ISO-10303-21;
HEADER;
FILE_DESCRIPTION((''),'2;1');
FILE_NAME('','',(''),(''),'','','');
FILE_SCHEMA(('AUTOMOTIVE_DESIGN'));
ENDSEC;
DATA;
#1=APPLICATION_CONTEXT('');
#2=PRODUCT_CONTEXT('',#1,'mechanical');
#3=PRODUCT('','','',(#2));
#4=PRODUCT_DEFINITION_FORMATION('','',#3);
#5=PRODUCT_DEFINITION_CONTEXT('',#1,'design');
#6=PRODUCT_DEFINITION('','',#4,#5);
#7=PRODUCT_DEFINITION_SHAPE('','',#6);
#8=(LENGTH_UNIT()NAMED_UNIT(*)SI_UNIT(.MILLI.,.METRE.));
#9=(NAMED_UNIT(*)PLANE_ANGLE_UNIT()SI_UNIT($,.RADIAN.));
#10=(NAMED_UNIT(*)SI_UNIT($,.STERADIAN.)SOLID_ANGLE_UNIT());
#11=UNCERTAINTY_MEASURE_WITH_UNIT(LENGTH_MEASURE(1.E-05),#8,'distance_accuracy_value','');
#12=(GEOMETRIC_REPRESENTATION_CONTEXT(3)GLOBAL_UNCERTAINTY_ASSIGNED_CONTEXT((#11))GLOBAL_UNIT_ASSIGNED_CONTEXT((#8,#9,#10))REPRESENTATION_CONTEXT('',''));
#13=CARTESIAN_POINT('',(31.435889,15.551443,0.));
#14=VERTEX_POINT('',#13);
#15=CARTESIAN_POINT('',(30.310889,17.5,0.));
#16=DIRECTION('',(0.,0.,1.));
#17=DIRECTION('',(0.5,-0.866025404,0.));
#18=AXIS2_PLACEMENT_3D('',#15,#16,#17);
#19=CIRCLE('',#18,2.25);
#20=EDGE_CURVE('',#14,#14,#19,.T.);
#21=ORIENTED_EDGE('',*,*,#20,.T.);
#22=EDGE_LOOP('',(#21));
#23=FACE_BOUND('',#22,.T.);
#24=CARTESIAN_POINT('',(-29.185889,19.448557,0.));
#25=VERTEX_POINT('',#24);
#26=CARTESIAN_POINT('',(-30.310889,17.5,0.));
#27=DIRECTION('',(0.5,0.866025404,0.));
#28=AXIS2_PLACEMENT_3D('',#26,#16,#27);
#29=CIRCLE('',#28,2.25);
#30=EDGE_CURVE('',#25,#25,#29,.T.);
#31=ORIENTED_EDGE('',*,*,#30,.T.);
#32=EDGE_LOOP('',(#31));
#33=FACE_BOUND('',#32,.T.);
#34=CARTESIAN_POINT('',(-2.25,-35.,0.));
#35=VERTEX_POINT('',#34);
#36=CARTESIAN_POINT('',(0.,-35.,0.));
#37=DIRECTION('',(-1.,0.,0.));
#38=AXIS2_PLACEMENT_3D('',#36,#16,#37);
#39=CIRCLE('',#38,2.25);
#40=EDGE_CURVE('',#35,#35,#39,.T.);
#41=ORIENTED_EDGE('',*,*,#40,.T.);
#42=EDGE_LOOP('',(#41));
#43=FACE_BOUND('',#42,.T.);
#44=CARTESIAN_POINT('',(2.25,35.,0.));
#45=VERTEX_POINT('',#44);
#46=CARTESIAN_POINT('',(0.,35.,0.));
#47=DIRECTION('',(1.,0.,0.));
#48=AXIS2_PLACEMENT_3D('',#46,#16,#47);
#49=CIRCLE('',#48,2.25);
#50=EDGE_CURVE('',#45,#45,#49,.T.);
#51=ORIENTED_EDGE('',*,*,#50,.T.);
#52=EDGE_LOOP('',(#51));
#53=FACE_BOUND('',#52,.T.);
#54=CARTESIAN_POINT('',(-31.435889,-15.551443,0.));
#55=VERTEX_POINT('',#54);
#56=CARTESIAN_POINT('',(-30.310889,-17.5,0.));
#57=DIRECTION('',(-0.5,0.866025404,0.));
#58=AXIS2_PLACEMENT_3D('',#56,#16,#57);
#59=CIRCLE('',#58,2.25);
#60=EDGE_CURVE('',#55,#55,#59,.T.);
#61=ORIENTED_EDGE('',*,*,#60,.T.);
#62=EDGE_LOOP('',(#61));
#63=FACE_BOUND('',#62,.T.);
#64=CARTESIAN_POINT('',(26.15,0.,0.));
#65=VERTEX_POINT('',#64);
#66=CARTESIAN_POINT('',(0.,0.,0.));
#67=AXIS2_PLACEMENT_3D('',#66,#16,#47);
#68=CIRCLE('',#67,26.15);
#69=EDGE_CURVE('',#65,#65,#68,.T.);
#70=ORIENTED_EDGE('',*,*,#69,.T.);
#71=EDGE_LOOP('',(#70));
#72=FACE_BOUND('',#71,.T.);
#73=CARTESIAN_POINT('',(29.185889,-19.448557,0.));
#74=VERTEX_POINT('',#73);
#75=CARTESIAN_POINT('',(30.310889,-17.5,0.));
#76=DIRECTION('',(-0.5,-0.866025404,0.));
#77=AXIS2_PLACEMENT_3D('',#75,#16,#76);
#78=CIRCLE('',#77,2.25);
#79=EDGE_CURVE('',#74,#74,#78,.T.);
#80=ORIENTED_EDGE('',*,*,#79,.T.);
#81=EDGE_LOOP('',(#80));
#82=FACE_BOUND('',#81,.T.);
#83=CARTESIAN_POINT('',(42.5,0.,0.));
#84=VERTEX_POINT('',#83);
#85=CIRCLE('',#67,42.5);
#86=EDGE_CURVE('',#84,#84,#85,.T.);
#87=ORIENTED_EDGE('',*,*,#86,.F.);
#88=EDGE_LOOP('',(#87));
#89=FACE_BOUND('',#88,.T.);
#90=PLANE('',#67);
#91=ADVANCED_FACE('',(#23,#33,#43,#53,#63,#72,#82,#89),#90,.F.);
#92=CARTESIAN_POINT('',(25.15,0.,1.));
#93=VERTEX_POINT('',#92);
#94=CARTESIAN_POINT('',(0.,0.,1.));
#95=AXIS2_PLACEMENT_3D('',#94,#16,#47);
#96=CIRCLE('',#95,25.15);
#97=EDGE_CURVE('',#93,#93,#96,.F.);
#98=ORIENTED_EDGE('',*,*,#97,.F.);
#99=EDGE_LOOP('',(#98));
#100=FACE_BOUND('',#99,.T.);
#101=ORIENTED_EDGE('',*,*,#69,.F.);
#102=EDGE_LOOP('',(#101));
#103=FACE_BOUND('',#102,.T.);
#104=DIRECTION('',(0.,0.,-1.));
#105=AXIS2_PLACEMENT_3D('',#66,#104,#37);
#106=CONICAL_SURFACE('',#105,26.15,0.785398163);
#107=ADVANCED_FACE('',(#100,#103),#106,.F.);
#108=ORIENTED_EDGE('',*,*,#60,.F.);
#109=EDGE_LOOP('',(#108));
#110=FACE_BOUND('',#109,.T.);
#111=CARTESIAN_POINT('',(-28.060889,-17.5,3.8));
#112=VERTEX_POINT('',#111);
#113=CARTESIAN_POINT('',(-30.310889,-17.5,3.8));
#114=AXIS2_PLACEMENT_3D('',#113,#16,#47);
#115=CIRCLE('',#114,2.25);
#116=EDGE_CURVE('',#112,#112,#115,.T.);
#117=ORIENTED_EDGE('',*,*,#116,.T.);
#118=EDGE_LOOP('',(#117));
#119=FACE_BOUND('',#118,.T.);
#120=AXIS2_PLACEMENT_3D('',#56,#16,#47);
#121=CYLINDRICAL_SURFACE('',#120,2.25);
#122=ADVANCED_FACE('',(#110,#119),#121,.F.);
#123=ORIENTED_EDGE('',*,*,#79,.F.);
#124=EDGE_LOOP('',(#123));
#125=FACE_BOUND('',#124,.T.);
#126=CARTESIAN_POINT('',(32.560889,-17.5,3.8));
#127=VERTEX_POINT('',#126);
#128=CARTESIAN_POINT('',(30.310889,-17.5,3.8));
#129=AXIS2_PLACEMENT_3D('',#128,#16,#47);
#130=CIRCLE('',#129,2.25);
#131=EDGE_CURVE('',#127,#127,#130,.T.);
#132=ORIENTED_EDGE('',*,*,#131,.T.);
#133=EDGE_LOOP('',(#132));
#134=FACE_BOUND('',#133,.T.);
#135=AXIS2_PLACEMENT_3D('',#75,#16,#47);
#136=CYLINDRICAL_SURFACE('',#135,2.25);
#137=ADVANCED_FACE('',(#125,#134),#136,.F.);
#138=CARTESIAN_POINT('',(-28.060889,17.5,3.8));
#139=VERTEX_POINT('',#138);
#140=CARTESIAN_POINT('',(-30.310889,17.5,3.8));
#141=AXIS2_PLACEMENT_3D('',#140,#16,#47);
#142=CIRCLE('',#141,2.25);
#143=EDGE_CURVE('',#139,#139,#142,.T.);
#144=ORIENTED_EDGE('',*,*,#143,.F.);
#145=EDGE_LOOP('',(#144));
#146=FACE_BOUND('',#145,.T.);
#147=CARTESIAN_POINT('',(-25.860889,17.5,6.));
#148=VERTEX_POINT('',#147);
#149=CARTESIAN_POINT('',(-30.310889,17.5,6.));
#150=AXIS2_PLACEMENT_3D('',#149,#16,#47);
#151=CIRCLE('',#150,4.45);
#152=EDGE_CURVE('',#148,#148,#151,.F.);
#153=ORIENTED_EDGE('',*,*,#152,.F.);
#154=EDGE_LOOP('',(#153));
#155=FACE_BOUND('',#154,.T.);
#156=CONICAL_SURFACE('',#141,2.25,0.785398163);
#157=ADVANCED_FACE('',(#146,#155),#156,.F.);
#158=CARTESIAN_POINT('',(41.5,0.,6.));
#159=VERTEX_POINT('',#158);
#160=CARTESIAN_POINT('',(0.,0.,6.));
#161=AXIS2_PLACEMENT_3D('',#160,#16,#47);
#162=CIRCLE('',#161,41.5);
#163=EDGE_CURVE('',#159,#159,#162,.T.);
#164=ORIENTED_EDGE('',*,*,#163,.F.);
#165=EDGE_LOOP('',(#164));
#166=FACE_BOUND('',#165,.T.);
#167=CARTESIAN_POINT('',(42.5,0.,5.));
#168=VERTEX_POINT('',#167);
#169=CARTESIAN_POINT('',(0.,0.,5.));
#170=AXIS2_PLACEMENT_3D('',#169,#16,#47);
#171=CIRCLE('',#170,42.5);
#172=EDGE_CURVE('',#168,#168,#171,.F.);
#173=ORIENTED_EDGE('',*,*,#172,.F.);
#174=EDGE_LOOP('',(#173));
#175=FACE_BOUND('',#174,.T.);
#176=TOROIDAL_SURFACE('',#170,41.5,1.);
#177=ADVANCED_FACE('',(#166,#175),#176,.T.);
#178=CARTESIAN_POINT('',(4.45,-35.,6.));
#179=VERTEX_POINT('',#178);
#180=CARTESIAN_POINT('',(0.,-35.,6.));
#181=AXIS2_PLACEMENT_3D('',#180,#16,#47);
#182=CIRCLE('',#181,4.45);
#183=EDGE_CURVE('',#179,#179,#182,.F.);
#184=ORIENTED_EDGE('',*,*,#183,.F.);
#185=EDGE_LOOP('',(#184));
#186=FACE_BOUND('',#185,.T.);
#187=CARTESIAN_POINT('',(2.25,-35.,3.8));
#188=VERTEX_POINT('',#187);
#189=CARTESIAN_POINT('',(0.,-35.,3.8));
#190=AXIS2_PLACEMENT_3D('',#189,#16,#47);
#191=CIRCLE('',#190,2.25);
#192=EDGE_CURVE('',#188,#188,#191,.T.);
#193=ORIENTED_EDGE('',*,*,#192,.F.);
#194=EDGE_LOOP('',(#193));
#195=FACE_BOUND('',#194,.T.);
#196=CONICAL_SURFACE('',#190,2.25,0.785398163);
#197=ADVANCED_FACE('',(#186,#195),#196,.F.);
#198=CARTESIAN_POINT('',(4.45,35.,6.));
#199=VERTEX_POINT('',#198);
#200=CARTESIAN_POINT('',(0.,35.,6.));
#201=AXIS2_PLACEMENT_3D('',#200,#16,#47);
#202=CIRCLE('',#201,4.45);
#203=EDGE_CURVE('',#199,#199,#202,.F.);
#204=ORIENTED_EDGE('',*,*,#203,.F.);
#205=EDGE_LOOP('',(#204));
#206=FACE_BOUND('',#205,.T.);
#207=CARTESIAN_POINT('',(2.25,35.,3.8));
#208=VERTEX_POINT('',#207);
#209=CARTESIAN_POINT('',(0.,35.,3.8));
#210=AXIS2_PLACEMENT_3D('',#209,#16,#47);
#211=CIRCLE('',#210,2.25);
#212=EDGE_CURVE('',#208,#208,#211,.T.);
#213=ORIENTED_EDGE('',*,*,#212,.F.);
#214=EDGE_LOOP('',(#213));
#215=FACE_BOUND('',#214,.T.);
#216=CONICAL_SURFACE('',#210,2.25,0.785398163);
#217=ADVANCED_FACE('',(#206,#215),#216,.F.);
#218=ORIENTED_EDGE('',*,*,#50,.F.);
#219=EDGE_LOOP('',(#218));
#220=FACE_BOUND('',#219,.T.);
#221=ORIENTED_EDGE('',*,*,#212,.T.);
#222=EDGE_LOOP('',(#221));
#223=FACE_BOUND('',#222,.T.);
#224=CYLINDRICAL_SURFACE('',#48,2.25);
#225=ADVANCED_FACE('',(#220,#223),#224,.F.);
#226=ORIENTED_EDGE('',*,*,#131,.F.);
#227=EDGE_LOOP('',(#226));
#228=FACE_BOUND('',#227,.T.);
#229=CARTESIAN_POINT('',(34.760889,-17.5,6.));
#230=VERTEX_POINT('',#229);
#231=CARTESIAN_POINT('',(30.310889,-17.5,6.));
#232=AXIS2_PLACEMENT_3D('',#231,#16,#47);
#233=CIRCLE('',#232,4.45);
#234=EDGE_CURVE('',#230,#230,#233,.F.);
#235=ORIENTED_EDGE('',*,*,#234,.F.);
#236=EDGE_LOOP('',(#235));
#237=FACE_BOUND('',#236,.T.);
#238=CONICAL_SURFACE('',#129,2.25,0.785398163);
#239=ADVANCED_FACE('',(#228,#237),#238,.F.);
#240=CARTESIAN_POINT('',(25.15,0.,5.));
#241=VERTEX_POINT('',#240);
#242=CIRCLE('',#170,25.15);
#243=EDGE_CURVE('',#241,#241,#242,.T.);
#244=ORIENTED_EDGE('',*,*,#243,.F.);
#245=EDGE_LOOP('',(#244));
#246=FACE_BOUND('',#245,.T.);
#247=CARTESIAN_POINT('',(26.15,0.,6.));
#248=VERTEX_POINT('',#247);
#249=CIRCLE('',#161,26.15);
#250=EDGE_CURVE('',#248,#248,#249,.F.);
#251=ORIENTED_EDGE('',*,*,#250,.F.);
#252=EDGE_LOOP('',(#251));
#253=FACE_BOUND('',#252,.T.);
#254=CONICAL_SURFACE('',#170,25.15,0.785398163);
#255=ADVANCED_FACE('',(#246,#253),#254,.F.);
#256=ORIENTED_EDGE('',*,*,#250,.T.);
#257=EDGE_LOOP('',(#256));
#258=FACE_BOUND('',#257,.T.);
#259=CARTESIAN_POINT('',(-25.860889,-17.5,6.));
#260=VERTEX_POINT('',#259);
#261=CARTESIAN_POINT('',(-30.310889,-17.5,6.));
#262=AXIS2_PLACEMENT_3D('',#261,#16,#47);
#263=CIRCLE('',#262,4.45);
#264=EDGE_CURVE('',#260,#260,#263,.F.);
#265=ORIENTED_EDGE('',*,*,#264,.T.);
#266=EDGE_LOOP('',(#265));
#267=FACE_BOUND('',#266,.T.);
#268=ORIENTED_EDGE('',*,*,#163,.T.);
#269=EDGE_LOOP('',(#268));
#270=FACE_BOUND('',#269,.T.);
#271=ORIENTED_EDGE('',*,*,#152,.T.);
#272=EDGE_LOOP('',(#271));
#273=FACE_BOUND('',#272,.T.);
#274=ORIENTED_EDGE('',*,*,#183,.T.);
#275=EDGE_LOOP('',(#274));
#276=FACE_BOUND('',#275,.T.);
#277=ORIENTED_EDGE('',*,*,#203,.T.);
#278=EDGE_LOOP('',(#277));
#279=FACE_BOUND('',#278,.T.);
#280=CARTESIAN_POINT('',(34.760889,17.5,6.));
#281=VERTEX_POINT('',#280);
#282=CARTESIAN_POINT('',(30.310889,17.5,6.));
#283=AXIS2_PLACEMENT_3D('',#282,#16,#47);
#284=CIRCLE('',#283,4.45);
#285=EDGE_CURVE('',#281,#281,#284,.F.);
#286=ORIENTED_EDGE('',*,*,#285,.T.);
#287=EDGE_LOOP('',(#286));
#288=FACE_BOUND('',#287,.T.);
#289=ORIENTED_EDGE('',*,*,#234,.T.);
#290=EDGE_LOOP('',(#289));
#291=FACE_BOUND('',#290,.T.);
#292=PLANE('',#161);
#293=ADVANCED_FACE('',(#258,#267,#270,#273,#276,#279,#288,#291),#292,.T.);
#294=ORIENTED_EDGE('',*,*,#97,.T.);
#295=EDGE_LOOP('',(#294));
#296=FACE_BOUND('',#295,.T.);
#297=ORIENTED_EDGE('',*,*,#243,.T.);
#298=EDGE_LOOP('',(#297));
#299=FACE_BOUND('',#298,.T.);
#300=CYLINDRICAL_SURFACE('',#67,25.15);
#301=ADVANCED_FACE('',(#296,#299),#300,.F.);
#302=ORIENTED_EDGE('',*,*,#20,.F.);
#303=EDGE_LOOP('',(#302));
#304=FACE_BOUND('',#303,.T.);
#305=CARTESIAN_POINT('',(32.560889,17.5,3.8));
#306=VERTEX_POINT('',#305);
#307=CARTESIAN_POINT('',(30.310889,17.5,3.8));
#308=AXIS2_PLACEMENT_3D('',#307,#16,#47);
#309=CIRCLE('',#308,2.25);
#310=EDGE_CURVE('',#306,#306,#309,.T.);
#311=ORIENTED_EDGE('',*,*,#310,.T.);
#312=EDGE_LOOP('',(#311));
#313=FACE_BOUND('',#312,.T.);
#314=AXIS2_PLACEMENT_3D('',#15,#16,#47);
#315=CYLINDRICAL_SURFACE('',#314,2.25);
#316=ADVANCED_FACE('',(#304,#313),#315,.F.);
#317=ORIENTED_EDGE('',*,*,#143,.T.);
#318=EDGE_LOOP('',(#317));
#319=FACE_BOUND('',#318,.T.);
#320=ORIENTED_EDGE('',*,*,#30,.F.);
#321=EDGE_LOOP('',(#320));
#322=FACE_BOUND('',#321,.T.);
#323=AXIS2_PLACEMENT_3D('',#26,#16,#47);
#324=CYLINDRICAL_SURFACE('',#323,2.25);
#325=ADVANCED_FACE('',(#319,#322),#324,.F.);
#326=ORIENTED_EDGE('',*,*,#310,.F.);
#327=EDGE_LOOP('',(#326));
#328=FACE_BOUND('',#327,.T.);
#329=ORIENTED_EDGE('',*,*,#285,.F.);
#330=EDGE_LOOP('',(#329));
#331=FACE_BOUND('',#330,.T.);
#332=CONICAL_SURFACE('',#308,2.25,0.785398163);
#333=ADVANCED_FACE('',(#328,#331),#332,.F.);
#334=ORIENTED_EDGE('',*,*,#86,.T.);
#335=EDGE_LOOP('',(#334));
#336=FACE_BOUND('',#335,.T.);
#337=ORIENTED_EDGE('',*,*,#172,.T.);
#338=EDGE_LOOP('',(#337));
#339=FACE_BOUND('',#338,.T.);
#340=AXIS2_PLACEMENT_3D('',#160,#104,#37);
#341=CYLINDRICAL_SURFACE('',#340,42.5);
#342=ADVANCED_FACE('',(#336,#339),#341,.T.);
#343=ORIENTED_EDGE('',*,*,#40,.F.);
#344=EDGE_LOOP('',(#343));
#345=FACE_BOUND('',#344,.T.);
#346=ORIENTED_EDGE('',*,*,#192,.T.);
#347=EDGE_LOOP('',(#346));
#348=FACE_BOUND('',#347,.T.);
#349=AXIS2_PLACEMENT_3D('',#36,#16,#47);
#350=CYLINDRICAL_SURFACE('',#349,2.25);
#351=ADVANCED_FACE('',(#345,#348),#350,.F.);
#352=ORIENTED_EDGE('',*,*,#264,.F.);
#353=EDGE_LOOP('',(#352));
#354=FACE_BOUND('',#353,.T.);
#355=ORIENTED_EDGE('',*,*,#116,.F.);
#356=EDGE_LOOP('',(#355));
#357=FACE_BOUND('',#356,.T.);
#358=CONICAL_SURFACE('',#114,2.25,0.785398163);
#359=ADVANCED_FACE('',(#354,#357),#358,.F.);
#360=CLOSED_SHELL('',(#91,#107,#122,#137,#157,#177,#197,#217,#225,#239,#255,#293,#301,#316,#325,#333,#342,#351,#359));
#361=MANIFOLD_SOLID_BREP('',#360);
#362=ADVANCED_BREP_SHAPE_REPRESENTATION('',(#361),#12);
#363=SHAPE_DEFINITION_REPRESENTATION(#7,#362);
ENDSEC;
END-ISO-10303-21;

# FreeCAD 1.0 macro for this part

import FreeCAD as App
import Part
import Sketcher
Q = App.Units.Quantity


def edges_at(feature, points):
    """Names of the edges that pass closest to the given points."""
    edges = feature.Shape.Edges
    near = lambda p: min(range(len(edges)), key=lambda i: edges[i].distToShape(Part.Vertex(*p))[0])
    return sorted({f"Edge{near(p) + 1}" for p in points})

doc = App.newDocument("Part")
body = doc.addObject("PartDesign::Body", "Body")

# Sketch on XY plane
sketch1 = body.newObject("Sketcher::SketchObject", "Sketch")
sketch1.AttachmentSupport = (doc.getObject("XY_Plane"), [""])
sketch1.MapMode = "FlatFace"
sketch1.addGeometry(Part.Circle(App.Vector(0, 0, 0), App.Vector(0, 0, 1), 42), False)
sketch1.addConstraint([
    Sketcher.Constraint("Coincident", 0, 3, -1, 1),
    Sketcher.Constraint("Diameter", 0, Q("85 mm")),
])
pad1 = body.newObject("PartDesign::Pad", "Pad")
pad1.Profile = sketch1
pad1.Length = 6

# Sketch on XY plane
sketch2 = body.newObject("Sketcher::SketchObject", "Sketch001")
sketch2.AttachmentSupport = (doc.getObject("XY_Plane"), [""])
sketch2.MapMode = "FlatFace"
sketch2.AttachmentOffset = App.Placement(App.Vector(0, 0, 6), App.Rotation())
sketch2.addGeometry(Part.Circle(App.Vector(0, 0, 0), App.Vector(0, 0, 1), 25), False)
sketch2.addConstraint([
    Sketcher.Constraint("Coincident", 0, 3, -1, 1),
    Sketcher.Constraint("Diameter", 0, Q("50.3 mm")),
])
pocket1 = body.newObject("PartDesign::Pocket", "Pocket")
pocket1.Profile = sketch2
pocket1.Type = "ThroughAll"

# Sketch on XY plane
sketch3 = body.newObject("Sketcher::SketchObject", "Sketch002")
sketch3.AttachmentSupport = (doc.getObject("XY_Plane"), [""])
sketch3.MapMode = "FlatFace"
sketch3.AttachmentOffset = App.Placement(App.Vector(0, 0, 6), App.Rotation())
sketch3.addGeometry(Part.Circle(App.Vector(0, 35, 0), App.Vector(0, 0, 1), 2.2), False)
sketch3.addConstraint([
    Sketcher.Constraint("PointOnObject", 0, 3, -2),
    Sketcher.Constraint("Diameter", 0, Q("4.5 mm")),
    Sketcher.Constraint("DistanceY", -1, 1, 0, 3, Q("35 mm")),
])
pocket2 = body.newObject("PartDesign::Pocket", "Pocket001")
pocket2.Profile = sketch3
pocket2.Type = "ThroughAll"
doc.recompute()

chamfer = body.newObject("PartDesign::Chamfer", "Chamfer")
chamfer.Base = (pocket2, edges_at(pocket2, [(-2.25, 35, 6)]))
chamfer.Size = 2.2
doc.recompute()

polarpattern = body.newObject("PartDesign::PolarPattern", "PolarPattern")
polarpattern.Originals = [pocket2]
polarpattern.Axis = (doc.getObject("Z_Axis"), [""])
polarpattern.Angle = 360
polarpattern.Occurrences = 6
body.Tip = polarpattern
doc.recompute()

chamfer2 = body.newObject("PartDesign::Chamfer", "Chamfer001")
chamfer2.Base = (polarpattern, edges_at(polarpattern, [
    (-31.436, 15.551, 6),
    (-29.186, -19.449, 6),
    (2.25, -35, 6),
    (31.436, -15.551, 6),
    (29.186, 19.449, 6),
]))
chamfer2.Size = 2.2
doc.recompute()

chamfer3 = body.newObject("PartDesign::Chamfer", "Chamfer002")
chamfer3.Base = (chamfer2, edges_at(chamfer2, [(-25.15, 0, 0), (-25.15, 0, 6)]))
chamfer3.Size = 1
doc.recompute()

fillet = body.newObject("PartDesign::Fillet", "Fillet")
fillet.Base = (chamfer3, edges_at(chamfer3, [(-42.5, 0, 6)]))
fillet.Radius = 1

doc.recompute()
